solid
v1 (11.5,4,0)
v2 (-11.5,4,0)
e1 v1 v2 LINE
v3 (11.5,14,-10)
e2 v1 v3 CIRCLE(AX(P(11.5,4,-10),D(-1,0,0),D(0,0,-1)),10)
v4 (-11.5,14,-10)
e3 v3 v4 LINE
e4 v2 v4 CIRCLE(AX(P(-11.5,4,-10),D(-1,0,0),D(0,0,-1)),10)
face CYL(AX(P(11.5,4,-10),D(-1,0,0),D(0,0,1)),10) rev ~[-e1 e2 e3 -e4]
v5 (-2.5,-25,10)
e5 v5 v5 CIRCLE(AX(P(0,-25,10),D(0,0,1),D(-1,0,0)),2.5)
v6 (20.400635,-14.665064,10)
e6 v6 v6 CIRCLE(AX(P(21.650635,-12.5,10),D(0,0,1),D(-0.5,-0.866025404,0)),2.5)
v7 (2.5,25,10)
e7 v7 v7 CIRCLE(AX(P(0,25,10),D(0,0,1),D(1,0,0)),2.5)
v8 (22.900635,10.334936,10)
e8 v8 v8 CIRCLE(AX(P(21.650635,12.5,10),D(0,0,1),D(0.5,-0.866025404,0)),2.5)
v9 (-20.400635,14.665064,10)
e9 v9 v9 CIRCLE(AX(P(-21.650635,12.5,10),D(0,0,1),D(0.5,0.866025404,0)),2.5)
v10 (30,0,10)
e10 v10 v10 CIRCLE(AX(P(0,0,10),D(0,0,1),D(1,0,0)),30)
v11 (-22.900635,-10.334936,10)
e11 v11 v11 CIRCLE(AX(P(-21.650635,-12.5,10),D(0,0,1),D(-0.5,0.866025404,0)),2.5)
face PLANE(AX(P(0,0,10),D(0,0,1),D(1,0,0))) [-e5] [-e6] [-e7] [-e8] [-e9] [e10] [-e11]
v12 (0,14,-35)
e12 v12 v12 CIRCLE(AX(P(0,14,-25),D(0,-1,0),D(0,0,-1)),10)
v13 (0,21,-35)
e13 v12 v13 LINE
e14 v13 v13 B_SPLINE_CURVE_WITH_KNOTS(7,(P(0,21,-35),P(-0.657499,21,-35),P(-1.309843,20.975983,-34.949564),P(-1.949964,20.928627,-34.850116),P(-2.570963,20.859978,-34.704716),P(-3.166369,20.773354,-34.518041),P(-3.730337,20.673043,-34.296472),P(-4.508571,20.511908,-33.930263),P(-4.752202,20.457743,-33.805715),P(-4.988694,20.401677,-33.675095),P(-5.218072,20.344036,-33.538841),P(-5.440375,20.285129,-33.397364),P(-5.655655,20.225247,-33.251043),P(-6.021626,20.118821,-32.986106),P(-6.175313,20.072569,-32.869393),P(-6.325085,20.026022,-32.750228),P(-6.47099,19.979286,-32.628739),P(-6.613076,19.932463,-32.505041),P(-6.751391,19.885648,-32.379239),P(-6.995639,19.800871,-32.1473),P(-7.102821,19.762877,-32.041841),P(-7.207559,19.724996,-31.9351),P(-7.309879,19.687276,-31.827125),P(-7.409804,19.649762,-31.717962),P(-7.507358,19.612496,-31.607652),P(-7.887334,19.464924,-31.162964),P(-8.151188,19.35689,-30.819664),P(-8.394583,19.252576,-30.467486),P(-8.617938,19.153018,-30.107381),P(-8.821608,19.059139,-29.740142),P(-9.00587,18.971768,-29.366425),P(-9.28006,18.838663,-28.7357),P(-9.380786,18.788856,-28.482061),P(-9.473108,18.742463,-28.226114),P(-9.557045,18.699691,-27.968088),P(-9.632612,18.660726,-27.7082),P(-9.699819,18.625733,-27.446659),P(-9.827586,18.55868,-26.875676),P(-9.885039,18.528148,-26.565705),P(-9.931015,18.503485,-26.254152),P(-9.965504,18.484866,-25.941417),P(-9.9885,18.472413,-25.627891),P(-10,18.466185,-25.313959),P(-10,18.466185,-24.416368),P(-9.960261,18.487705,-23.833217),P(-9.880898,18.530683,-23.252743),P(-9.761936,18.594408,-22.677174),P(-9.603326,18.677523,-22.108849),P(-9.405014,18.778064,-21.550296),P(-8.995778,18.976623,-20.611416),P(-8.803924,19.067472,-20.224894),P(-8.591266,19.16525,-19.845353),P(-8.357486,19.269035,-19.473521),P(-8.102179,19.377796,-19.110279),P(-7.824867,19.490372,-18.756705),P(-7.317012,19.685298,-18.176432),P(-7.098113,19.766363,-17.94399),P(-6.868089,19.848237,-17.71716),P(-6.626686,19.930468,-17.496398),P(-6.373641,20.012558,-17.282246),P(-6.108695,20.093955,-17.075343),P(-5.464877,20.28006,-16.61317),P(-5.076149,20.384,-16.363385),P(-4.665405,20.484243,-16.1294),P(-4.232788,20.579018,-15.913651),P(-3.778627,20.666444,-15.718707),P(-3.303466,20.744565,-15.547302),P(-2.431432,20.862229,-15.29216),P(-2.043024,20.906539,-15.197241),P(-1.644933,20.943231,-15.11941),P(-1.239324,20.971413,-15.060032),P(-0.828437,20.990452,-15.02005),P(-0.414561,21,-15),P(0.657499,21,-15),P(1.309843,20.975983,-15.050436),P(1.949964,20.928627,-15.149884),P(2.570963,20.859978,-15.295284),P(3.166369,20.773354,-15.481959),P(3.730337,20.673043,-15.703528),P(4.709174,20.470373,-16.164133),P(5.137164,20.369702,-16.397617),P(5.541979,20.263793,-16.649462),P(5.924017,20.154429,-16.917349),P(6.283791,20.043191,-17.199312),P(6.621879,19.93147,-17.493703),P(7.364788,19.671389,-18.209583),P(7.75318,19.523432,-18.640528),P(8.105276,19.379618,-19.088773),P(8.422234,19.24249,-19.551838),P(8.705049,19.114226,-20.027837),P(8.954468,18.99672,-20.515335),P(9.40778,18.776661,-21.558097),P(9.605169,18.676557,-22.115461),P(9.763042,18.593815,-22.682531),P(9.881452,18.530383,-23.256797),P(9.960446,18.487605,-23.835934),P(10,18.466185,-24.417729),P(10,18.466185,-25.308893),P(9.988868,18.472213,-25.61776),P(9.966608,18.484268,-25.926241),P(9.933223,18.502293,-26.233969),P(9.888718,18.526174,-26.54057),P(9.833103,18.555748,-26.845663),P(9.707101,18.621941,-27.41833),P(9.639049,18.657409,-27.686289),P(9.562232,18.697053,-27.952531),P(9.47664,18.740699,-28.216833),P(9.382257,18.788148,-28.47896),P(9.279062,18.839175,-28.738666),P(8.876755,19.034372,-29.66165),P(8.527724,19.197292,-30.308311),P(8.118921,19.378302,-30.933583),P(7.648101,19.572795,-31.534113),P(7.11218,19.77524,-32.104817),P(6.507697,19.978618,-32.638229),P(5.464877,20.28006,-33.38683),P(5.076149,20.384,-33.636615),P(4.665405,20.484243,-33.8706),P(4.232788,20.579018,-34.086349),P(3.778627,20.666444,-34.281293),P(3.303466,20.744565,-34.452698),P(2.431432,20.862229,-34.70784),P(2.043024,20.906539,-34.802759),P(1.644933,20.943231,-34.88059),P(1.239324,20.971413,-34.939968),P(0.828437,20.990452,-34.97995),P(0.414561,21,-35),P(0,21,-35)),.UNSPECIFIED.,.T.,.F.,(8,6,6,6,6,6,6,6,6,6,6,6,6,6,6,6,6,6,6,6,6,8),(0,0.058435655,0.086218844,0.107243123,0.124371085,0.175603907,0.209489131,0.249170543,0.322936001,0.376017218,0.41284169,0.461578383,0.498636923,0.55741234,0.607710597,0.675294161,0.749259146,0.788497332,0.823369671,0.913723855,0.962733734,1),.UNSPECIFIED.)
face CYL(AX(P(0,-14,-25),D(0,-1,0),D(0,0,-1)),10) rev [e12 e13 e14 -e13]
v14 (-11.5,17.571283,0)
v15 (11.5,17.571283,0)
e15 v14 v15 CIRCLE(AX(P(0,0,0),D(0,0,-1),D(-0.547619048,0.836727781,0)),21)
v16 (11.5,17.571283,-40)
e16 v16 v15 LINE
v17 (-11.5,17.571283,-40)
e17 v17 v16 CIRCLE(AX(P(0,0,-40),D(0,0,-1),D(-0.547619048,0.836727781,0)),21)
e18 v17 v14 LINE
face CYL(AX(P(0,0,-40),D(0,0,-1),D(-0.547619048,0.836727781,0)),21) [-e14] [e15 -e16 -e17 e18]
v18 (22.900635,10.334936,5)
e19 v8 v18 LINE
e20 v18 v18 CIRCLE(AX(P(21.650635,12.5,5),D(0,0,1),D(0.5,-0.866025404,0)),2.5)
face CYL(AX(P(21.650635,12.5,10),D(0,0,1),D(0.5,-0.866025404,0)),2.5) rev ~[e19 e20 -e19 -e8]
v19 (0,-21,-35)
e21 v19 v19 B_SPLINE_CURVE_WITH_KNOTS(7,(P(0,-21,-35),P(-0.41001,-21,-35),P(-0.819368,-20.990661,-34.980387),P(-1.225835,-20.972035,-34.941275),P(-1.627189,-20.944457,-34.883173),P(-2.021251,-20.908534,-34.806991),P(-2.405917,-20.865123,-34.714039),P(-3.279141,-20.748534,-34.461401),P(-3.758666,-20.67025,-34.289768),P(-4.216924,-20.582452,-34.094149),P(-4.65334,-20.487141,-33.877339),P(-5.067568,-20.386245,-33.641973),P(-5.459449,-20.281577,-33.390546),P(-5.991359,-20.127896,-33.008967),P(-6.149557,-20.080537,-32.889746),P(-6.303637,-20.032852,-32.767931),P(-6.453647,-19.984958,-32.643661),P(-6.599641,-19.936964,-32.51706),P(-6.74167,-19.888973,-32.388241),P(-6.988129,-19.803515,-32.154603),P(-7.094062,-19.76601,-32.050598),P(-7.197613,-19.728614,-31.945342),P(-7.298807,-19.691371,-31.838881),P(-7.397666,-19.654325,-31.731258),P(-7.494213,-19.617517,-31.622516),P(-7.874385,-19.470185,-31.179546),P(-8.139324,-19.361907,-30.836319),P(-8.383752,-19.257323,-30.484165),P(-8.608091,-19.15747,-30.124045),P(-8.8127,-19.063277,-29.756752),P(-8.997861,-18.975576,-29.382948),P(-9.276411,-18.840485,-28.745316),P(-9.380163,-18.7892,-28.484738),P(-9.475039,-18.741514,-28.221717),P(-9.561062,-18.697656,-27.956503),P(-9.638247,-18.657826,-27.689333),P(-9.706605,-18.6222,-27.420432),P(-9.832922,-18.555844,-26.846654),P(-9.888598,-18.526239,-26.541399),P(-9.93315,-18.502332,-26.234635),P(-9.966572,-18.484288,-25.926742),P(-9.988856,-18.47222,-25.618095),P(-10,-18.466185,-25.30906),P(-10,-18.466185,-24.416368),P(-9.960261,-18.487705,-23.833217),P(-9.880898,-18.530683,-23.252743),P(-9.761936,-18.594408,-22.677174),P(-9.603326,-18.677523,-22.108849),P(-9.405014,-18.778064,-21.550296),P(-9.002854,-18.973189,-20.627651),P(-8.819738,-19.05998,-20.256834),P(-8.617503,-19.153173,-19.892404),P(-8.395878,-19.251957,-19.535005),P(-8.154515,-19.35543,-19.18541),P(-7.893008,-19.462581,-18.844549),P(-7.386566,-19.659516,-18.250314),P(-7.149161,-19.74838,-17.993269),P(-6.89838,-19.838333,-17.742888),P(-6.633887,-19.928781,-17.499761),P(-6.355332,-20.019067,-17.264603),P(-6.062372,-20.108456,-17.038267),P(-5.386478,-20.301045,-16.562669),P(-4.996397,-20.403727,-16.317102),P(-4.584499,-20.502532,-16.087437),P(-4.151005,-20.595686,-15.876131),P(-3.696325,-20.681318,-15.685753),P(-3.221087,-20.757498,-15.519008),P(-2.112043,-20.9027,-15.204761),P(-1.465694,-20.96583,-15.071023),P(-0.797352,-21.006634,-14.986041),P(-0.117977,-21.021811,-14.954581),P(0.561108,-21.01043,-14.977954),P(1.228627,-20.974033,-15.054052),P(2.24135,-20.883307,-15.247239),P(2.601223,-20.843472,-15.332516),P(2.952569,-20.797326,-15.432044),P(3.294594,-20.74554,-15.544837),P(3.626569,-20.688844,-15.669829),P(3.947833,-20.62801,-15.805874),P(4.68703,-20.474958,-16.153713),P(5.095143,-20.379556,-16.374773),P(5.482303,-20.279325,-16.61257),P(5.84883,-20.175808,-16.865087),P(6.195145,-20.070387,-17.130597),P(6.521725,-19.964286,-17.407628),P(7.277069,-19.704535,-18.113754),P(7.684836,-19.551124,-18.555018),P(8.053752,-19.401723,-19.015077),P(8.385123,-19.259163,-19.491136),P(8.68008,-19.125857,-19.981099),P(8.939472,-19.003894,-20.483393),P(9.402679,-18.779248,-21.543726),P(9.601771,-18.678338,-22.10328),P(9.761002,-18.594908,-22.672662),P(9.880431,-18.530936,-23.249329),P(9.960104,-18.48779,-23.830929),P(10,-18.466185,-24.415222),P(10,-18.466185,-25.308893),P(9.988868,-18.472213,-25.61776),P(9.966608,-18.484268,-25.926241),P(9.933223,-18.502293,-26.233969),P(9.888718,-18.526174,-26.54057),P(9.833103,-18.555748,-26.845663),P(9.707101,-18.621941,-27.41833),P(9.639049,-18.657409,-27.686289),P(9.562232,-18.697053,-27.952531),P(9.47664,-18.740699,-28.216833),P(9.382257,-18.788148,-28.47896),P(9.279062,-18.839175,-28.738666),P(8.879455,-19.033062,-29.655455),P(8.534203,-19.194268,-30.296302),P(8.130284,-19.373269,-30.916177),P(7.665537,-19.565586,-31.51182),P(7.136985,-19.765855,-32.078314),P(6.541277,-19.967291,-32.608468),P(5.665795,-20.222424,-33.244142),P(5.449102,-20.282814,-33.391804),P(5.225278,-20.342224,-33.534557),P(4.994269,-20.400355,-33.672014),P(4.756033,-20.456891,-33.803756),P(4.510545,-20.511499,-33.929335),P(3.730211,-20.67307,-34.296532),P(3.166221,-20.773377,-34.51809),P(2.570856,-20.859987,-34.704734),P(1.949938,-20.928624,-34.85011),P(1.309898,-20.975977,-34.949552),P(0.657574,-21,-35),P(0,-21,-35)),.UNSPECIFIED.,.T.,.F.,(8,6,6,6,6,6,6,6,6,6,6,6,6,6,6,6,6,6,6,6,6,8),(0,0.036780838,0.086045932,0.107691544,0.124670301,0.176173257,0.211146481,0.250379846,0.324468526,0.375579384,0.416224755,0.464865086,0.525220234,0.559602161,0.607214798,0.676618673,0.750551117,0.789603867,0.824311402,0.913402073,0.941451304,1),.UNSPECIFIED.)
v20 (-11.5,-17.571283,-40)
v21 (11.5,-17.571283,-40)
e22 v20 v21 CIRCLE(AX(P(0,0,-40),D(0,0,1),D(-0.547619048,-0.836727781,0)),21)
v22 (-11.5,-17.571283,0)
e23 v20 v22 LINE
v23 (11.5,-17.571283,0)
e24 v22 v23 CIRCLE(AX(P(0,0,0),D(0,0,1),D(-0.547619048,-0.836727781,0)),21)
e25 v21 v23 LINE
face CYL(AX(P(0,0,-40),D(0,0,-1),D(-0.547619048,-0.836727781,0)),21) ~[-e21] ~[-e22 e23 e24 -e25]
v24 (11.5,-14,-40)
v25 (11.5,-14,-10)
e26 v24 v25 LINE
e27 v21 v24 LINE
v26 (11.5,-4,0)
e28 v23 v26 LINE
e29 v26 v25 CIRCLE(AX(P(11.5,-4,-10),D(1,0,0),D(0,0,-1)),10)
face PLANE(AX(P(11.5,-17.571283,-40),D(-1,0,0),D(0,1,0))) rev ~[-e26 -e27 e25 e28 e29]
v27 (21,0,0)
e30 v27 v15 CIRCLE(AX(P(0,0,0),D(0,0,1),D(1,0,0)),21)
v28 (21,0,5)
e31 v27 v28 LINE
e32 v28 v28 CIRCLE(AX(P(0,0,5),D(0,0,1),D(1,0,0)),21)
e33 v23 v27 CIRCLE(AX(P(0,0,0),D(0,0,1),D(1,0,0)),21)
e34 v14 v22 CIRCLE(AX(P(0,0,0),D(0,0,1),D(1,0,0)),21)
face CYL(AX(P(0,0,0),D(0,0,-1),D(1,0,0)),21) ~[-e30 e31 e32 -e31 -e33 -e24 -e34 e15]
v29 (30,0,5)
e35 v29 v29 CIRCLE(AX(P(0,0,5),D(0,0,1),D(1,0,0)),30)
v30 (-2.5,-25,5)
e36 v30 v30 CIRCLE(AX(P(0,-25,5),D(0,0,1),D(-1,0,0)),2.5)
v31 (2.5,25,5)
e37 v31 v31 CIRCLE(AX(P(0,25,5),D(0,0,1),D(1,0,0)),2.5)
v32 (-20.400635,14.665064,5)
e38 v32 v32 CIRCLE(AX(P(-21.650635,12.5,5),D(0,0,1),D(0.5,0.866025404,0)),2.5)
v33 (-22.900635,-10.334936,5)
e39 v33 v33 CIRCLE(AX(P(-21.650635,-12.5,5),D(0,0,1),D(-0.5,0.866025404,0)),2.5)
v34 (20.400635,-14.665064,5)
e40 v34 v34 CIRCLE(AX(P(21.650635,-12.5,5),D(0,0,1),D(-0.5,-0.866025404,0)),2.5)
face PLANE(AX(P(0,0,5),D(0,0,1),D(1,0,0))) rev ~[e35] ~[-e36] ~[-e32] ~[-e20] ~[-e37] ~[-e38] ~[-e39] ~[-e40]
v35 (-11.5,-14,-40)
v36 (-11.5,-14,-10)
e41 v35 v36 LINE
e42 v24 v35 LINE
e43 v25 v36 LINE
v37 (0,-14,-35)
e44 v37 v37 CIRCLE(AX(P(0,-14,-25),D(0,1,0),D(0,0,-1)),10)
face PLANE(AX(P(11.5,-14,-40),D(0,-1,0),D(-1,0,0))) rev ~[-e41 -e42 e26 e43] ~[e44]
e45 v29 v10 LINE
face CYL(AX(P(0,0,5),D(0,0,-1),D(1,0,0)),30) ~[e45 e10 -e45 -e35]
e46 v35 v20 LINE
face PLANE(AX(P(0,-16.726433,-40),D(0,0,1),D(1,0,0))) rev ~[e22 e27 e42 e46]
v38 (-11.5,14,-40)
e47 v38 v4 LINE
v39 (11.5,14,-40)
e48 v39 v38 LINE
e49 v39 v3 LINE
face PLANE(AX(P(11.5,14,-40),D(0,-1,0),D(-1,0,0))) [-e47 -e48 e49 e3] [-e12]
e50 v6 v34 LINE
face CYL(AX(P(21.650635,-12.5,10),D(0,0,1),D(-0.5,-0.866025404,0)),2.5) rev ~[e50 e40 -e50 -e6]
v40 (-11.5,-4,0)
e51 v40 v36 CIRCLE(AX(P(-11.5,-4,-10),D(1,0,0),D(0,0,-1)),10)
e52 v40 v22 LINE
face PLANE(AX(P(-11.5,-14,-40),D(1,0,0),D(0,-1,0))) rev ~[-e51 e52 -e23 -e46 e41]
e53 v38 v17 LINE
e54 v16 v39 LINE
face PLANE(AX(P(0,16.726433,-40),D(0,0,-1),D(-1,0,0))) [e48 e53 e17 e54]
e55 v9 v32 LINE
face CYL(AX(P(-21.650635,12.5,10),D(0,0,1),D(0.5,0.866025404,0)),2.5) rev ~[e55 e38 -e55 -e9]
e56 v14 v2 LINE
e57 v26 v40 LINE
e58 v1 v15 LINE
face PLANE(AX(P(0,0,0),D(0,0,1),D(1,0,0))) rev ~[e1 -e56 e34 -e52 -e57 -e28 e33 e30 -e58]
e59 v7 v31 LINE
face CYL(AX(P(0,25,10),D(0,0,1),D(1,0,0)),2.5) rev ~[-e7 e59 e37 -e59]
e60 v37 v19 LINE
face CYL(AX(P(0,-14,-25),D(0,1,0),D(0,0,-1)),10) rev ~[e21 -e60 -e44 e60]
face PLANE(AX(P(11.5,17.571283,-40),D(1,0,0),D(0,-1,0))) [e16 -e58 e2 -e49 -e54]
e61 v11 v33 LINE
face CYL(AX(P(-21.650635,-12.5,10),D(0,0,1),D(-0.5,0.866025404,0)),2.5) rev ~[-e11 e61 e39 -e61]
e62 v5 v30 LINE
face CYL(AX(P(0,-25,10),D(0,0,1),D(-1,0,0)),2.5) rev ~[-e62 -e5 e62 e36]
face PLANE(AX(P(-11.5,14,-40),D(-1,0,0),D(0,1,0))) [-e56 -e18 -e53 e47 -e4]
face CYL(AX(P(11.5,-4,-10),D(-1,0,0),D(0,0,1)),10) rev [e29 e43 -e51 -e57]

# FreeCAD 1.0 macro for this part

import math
import FreeCAD as App
import Part
import Sketcher

V = App.Vector


def edges_at(feature, points):
    """Names of the edges that pass closest to the given points."""
    edges = feature.Shape.Edges
    near = lambda p: min(range(len(edges)), key=lambda i: edges[i].distToShape(Part.Vertex(*p))[0])
    return sorted({f"Edge{near(p) + 1}" for p in points})

doc = App.newDocument("Part")
body = doc.addObject("PartDesign::Body", "Body")

# Sketch on XY plane
sketch1 = body.newObject("Sketcher::SketchObject", "Sketch")
sketch1.AttachmentSupport = (doc.getObject("XY_Plane"), [""])
sketch1.MapMode = "FlatFace"
sketch1.addGeometry(Part.Circle(V(0, 0, 0), V(0, 0, 1), 21), False)
sketch1.addConstraint(Sketcher.Constraint("Coincident", 0, 3, -1, 1))
sketch1.addConstraint(Sketcher.Constraint("Diameter", 0, 42.0))
pad1 = body.newObject("PartDesign::Pad", "Pad")
pad1.Profile = sketch1
pad1.Length = 5

# Sketch on XY plane
sketch2 = body.newObject("Sketcher::SketchObject", "Sketch001")
sketch2.AttachmentSupport = (doc.getObject("XY_Plane"), [""])
sketch2.MapMode = "FlatFace"
sketch2.AttachmentOffset = App.Placement(V(0, 0, -40), App.Rotation())
sketch2.addGeometry(Part.LineSegment(V(11.5, 17.6, 0), V(11.5, 14, 0)), False)
sketch2.addGeometry(Part.LineSegment(V(11.5, 14, 0), V(-11.5, 14, 0)), False)
sketch2.addGeometry(Part.LineSegment(V(-11.5, 14, 0), V(-11.5, 17.6, 0)), False)
sketch2.addGeometry(Part.ArcOfCircle(Part.Circle(V(0, 0, 0), V(0, 0, 1), 21), math.radians(57), math.radians(123)), False)
sketch2.addGeometry(Part.LineSegment(V(-11.5, -17.6, 0), V(-11.5, -14, 0)), False)
sketch2.addGeometry(Part.LineSegment(V(-11.5, -14, 0), V(11.5, -14, 0)), False)
sketch2.addGeometry(Part.LineSegment(V(11.5, -14, 0), V(11.5, -17.6, 0)), False)
sketch2.addGeometry(Part.ArcOfCircle(Part.Circle(V(0, 0, 0), V(0, 0, 1), 21), math.radians(-123), math.radians(-57)), False)
sketch2.addConstraint(Sketcher.Constraint("Coincident", 0, 2, 1, 1))
sketch2.addConstraint(Sketcher.Constraint("Coincident", 1, 2, 2, 1))
sketch2.addConstraint(Sketcher.Constraint("Coincident", 2, 2, 3, 2))
sketch2.addConstraint(Sketcher.Constraint("Coincident", 3, 1, 0, 1))
sketch2.addConstraint(Sketcher.Constraint("Coincident", 4, 2, 5, 1))
sketch2.addConstraint(Sketcher.Constraint("Coincident", 5, 2, 6, 1))
sketch2.addConstraint(Sketcher.Constraint("Coincident", 6, 2, 7, 2))
sketch2.addConstraint(Sketcher.Constraint("Coincident", 7, 1, 4, 1))
sketch2.addConstraint(Sketcher.Constraint("Vertical", 0))
sketch2.addConstraint(Sketcher.Constraint("Horizontal", 1))
sketch2.addConstraint(Sketcher.Constraint("Vertical", 2))
sketch2.addConstraint(Sketcher.Constraint("Vertical", 4))
sketch2.addConstraint(Sketcher.Constraint("Horizontal", 5))
sketch2.addConstraint(Sketcher.Constraint("Vertical", 6))
sketch2.addConstraint(Sketcher.Constraint("Coincident", 3, 3, -1, 1))
sketch2.addConstraint(Sketcher.Constraint("Coincident", 7, 3, -1, 1))
sketch2.addConstraint(Sketcher.Constraint("Equal", 3, 7))
sketch2.addConstraint(Sketcher.Constraint("Symmetric", 0, 2, 4, 2, -1, 1))
sketch2.addConstraint(Sketcher.Constraint("Horizontal", 2, 2, 3, 1))
sketch2.addConstraint(Sketcher.Constraint("Horizontal", 6, 2, 7, 1))
sketch2.addConstraint(Sketcher.Constraint("Radius", 3, 21.0))
sketch2.addConstraint(Sketcher.Constraint("DistanceX", 1, 2, 1, 1, 23.0))
sketch2.addConstraint(Sketcher.Constraint("DistanceY", -1, 1, 0, 2, 14.0))
pad2 = body.newObject("PartDesign::Pad", "Pad001")
pad2.Profile = sketch2
pad2.Length = 40

# Sketch on XZ plane
sketch3 = body.newObject("Sketcher::SketchObject", "Sketch002")
sketch3.AttachmentSupport = (doc.getObject("XZ_Plane"), [""])
sketch3.MapMode = "FlatFace"
sketch3.AttachmentOffset = App.Placement(V(0, 0, 14), App.Rotation())
sketch3.addGeometry(Part.Circle(V(0, -25, 0), V(0, 0, 1), 10), False)
sketch3.addConstraint(Sketcher.Constraint("PointOnObject", 0, 3, -2))
sketch3.addConstraint(Sketcher.Constraint("Diameter", 0, 20.0))
sketch3.addConstraint(Sketcher.Constraint("DistanceY", 0, 3, -1, 1, 25.0))
pocket1 = body.newObject("PartDesign::Pocket", "Pocket")
pocket1.Profile = sketch3
pocket1.Length = 7
pocket1.Reversed = True

# Sketch on XZ plane
sketch4 = body.newObject("Sketcher::SketchObject", "Sketch003")
sketch4.AttachmentSupport = (doc.getObject("XZ_Plane"), [""])
sketch4.MapMode = "FlatFace"
sketch4.AttachmentOffset = App.Placement(V(0, 0, 14), App.Rotation())
sketch4.addGeometry(Part.Circle(V(0, -25, 0), V(0, 0, 1), 10), False)
sketch4.addConstraint(Sketcher.Constraint("PointOnObject", 0, 3, -2))
sketch4.addConstraint(Sketcher.Constraint("Diameter", 0, 20.0))
sketch4.addConstraint(Sketcher.Constraint("DistanceY", 0, 3, -1, 1, 25.0))
pocket2 = body.newObject("PartDesign::Pocket", "Pocket001")
pocket2.Profile = sketch4
pocket2.Length = 58.148928
doc.recompute()

fillet = body.newObject("PartDesign::Fillet", "Fillet")
fillet.Base = (pocket2, edges_at(pocket2, [(0, -14, 0), (0, 14, 0)]))
fillet.Radius = 10

# Sketch on XY plane
sketch5 = body.newObject("Sketcher::SketchObject", "Sketch004")
sketch5.AttachmentSupport = (doc.getObject("XY_Plane"), [""])
sketch5.MapMode = "FlatFace"
sketch5.AttachmentOffset = App.Placement(V(0, 0, 5), App.Rotation())
sketch5.addGeometry(Part.Circle(V(0, 0, 0), V(0, 0, 1), 30), False)
sketch5.addConstraint(Sketcher.Constraint("Coincident", 0, 3, -1, 1))
sketch5.addConstraint(Sketcher.Constraint("Diameter", 0, 60.0))
pad3 = body.newObject("PartDesign::Pad", "Pad002")
pad3.Profile = sketch5
pad3.Length = 5

# Sketch on XY plane
sketch6 = body.newObject("Sketcher::SketchObject", "Sketch005")
sketch6.AttachmentSupport = (doc.getObject("XY_Plane"), [""])
sketch6.MapMode = "FlatFace"
sketch6.AttachmentOffset = App.Placement(V(0, 0, 10), App.Rotation())
sketch6.addGeometry(Part.Circle(V(0, 25, 0), V(0, 0, 1), 2.5), False)
sketch6.addConstraint(Sketcher.Constraint("PointOnObject", 0, 3, -2))
sketch6.addConstraint(Sketcher.Constraint("Diameter", 0, 5.0))
sketch6.addConstraint(Sketcher.Constraint("DistanceY", -1, 1, 0, 3, 25.0))
pocket3 = body.newObject("PartDesign::Pocket", "Pocket002")
pocket3.Profile = sketch6
pocket3.Length = 5
doc.recompute()

polarpattern = body.newObject("PartDesign::PolarPattern", "PolarPattern")
polarpattern.Originals = [pocket3]
polarpattern.Axis = (doc.getObject("Z_Axis"), [""])
polarpattern.Angle = 360
polarpattern.Occurrences = 6
body.Tip = polarpattern

doc.recompute()
